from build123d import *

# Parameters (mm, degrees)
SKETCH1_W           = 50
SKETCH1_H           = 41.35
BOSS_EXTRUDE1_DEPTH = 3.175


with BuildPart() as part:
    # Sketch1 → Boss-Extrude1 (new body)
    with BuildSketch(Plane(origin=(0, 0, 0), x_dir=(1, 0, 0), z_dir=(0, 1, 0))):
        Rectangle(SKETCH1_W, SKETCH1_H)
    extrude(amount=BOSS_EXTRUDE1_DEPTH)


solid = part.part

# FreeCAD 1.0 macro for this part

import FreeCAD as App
import Part
import Sketcher


def add_polygon(sketch, points):
    """Adds a closed chain of lines whose ends are joined by coincident constraints."""
    first, n = sketch.GeometryCount, len(points)
    for a, b in zip(points, points[1:] + points[:1]):
        sketch.addGeometry(Part.LineSegment(App.Vector(*a, 0), App.Vector(*b, 0)), False)
    for i in range(n):
        sketch.addConstraint(Sketcher.Constraint("Coincident", first + i, 2, first + (i + 1) % n, 1))

doc = App.newDocument("Part")
body = doc.addObject("PartDesign::Body", "Body")

# Sketch on XZ plane
sketch1 = doc.addObject("Sketcher::SketchObject", "Sketch")
body.addObject(sketch1)
sketch1.AttachmentSupport = (doc.XZ_Plane, [""])
sketch1.MapMode = "FlatFace"
add_polygon(sketch1, [(-25, -21), (-25, 21), (25, 21), (25, -21)])  # lines 0-3
sketch1.addConstraint([
    Sketcher.Constraint("Vertical", 0),
    Sketcher.Constraint("Horizontal", 1),
    Sketcher.Constraint("Vertical", 2),
    Sketcher.Constraint("Horizontal", 3),
    Sketcher.Constraint("Symmetric", 0, 2, 2, 2, -1, 1),
    Sketcher.Constraint("DistanceX", 1, 1, 1, 2, 50.0),
    Sketcher.Constraint("DistanceY", 0, 1, 0, 2, 41.35),
])
pad1 = doc.addObject("PartDesign::Pad", "Pad")
body.addObject(pad1)
pad1.Profile = sketch1
pad1.Length = 3.175
pad1.Reversed = True

doc.recompute()
